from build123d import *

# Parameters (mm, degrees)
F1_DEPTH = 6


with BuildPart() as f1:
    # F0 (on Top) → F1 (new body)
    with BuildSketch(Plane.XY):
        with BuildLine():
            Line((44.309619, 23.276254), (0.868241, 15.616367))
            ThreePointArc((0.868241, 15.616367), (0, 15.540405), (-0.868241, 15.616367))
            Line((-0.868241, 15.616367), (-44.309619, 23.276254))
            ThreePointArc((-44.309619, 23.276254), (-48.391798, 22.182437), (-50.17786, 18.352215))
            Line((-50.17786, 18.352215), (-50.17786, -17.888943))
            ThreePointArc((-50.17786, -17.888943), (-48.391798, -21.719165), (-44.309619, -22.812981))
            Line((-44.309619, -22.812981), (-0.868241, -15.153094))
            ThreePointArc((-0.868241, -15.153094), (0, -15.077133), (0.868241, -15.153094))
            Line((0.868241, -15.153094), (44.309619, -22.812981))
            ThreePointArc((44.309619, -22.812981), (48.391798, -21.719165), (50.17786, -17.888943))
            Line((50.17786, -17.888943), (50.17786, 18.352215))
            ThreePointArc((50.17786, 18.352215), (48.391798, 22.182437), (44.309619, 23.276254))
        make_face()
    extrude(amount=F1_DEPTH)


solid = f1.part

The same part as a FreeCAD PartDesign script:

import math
import FreeCAD as App
import Part
import Sketcher

V = App.Vector

doc = App.newDocument("Part")
body = doc.addObject("PartDesign::Body", "Body")

# Sketch on XY plane
sketch1 = body.newObject("Sketcher::SketchObject", "Sketch")
sketch1.AttachmentSupport = (doc.getObject("XY_Plane"), [""])
sketch1.MapMode = "FlatFace"
sketch1.addGeometry([
    Part.LineSegment(V(44.309619, 23.276254, 0), V(0.868241, 15.616367, 0)),  # 0
    Part.ArcOfCircle(Part.Circle(V(0, 20.540357, 0), V(0, 0, 1), 4.999952), math.radians(-100.000099), math.radians(-79.999901)),  # 1
    Part.LineSegment(V(-0.868241, 15.616367, 0), V(-44.309619, 23.276254, 0)),  # 2
    Part.ArcOfCircle(Part.Circle(V(-45.177859, 18.352214, 0), V(0, 0, 1), 5.000001), math.radians(80.000008), math.radians(179.999993)),  # 3
    Part.LineSegment(V(-50.17786, 18.352215, 0), V(-50.17786, -17.888943, 0)),  # 4
    Part.ArcOfCircle(Part.Circle(V(-45.177861, -17.888943, 0), V(0, 0, 1), 4.999999), math.radians(179.999999), math.radians(280.000011)),  # 5
    Part.LineSegment(V(-44.309619, -22.812981, 0), V(-0.868241, -15.153094, 0)),  # 6
    Part.ArcOfCircle(Part.Circle(V(0, -20.07715, 0), V(0, 0, 1), 5.000017), math.radians(80.000032), math.radians(99.999968)),  # 7
    Part.LineSegment(V(0.868241, -15.153094, 0), V(44.309619, -22.812981, 0)),  # 8
    Part.ArcOfCircle(Part.Circle(V(45.177861, -17.888943, 0), V(0, 0, 1), 4.999999), math.radians(-100.000011), math.radians(0.000001)),  # 9
    Part.LineSegment(V(50.17786, -17.888943, 0), V(50.17786, 18.352215, 0)),  # 10
    Part.ArcOfCircle(Part.Circle(V(45.177859, 18.352214, 0), V(0, 0, 1), 5.000001), math.radians(0.000007), math.radians(99.999992)),  # 11
], False)
sketch1.addConstraint([
    Sketcher.Constraint("Coincident", 0, 2, 1, 2),
    Sketcher.Constraint("Coincident", 1, 1, 2, 1),
    Sketcher.Constraint("Coincident", 2, 2, 3, 1),
    Sketcher.Constraint("Coincident", 3, 2, 4, 1),
    Sketcher.Constraint("Coincident", 4, 2, 5, 1),
    Sketcher.Constraint("Coincident", 5, 2, 6, 1),
    Sketcher.Constraint("Coincident", 6, 2, 7, 2),
    Sketcher.Constraint("Coincident", 7, 1, 8, 1),
    Sketcher.Constraint("Coincident", 8, 2, 9, 1),
    Sketcher.Constraint("Coincident", 9, 2, 10, 1),
    Sketcher.Constraint("Coincident", 10, 2, 11, 1),
    Sketcher.Constraint("Coincident", 11, 2, 0, 1),
    Sketcher.Constraint("Vertical", 4),
    Sketcher.Constraint("Vertical", 10),
    Sketcher.Constraint("PointOnObject", 1, 3, -2),
    Sketcher.Constraint("PointOnObject", 7, 3, -2),
    Sketcher.Constraint("Radius", 3, 5.000001),
    Sketcher.Constraint("Radius", 5, 4.999999),
    Sketcher.Constraint("Radius", 9, 4.999999),
    Sketcher.Constraint("Radius", 11, 5.000001),
    Sketcher.Constraint("Radius", 1, 4.999952),
    Sketcher.Constraint("Radius", 7, 5.000017),
    Sketcher.Constraint("DistanceY", 5, 3, 1, 3, 38.4293),
    Sketcher.Constraint("DistanceY", 9, 3, 1, 3, 38.4293),
    Sketcher.Constraint("DistanceX", 3, 3, 0, 2, 46.0461),
    Sketcher.Constraint("DistanceX", 1, 1, 11, 3, 46.0461),
    Sketcher.Constraint("Distance", 0, 44.111531),
    Sketcher.Constraint("Distance", 2, 44.111531),
    Sketcher.Constraint("Distance", 6, 44.111531),
    Sketcher.Constraint("Distance", 8, 44.111531),
    Sketcher.Constraint("DistanceY", 4, 2, 4, 1, 36.241158),
    Sketcher.Constraint("DistanceY", 10, 1, 10, 2, 36.241158),
    Sketcher.Constraint("DistanceX", 3, 3, -1, 1, 45.177859),
    Sketcher.Constraint("DistanceY", 7, 3, -1, 1, 20.07715),
    Sketcher.Constraint("DistanceX", -1, 1, 9, 3, 45.177861),
    Sketcher.Constraint("DistanceX", 2, 2, -1, 1, 44.309619),
    Sketcher.Constraint("DistanceX", 5, 2, -1, 1, 44.309619),
    Sketcher.Constraint("DistanceY", 5, 2, -1, 1, 22.812981),
    Sketcher.Constraint("DistanceX", -1, 1, 7, 1, 0.868241),
    Sketcher.Constraint("DistanceX", -1, 1, 11, 2, 44.309619),
    Sketcher.Constraint("DistanceY", 3, 2, 2, 2, 4.924039),
    Sketcher.Constraint("DistanceY", 9, 2, 7, 1, 2.735849),
])
pad1 = body.newObject("PartDesign::Pad", "Pad")
pad1.Profile = sketch1
pad1.Length = 6

doc.recompute()
